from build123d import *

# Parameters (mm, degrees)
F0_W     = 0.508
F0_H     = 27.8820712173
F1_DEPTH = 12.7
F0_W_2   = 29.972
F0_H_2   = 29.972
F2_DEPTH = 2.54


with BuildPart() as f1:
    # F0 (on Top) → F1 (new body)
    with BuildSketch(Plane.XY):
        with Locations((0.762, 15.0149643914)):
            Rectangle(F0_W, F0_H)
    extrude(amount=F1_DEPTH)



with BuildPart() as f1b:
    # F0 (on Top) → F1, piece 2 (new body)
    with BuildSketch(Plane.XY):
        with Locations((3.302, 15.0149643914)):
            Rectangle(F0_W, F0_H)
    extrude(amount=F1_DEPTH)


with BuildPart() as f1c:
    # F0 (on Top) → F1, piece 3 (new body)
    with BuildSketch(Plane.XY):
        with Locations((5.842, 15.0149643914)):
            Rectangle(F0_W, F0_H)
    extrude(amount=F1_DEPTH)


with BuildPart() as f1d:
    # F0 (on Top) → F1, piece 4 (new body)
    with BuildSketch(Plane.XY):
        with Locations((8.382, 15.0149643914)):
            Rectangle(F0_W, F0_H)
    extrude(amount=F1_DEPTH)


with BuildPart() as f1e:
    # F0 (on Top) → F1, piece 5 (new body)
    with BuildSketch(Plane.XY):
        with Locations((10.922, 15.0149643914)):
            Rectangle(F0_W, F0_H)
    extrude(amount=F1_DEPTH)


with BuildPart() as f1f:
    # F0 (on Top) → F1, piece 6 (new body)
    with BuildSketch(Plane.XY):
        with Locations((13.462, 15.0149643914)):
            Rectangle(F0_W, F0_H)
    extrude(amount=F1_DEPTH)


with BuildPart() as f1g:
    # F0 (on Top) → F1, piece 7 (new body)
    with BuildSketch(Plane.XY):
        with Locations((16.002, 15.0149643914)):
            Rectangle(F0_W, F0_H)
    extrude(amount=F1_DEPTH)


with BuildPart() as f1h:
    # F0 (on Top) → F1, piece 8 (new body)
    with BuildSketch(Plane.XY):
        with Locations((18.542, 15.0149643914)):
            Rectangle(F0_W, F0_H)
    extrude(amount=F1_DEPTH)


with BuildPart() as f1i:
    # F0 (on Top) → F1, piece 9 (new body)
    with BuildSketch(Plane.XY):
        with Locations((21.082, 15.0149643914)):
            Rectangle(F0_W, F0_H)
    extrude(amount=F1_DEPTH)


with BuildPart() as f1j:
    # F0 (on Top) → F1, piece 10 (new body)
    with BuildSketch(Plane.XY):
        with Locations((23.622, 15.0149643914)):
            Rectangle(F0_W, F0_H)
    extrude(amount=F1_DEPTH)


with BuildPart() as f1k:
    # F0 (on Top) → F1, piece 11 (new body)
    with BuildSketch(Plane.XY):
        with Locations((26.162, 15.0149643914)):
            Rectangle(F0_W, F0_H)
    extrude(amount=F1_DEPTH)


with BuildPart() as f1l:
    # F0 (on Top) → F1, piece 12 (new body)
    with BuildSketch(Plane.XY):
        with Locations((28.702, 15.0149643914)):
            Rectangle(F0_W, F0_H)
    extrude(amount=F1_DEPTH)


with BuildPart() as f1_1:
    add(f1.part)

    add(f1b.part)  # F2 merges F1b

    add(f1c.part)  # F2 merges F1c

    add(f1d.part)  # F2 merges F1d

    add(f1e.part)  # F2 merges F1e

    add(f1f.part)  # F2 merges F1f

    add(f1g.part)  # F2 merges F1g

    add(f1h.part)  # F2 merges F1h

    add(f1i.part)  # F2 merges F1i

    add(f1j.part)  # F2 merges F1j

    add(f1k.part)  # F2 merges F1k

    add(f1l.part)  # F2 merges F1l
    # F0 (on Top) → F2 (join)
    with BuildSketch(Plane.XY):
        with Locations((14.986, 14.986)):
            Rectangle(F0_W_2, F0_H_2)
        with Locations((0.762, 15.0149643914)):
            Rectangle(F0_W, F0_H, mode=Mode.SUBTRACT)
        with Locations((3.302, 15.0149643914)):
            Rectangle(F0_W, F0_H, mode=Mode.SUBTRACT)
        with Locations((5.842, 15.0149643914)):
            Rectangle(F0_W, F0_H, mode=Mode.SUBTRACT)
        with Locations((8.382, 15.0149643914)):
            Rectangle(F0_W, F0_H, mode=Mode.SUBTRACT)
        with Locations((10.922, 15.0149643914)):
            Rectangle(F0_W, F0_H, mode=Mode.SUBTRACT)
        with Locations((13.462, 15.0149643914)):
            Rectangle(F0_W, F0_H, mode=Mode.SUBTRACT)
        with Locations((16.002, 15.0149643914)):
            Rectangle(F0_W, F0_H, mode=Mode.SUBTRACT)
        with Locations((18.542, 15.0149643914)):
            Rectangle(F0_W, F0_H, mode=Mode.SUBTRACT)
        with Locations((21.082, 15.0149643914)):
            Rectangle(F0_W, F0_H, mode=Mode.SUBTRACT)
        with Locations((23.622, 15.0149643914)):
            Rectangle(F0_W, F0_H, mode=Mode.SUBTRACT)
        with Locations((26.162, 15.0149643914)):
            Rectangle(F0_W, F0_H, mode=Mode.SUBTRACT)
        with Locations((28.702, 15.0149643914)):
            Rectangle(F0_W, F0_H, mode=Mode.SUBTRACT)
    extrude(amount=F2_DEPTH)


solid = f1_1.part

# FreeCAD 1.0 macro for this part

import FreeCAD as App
import Part
import Sketcher
from FreeCAD import Vector
Q = App.Units.Quantity


def add_polygon(sketch, points):
    """Adds a closed chain of lines whose ends are joined by coincident constraints."""
    first, n = sketch.GeometryCount, len(points)
    for a, b in zip(points, points[1:] + points[:1]):
        sketch.addGeometry(Part.LineSegment(App.Vector(*a, 0), App.Vector(*b, 0)), False)
    for i in range(n):
        sketch.addConstraint(Sketcher.Constraint("Coincident", first + i, 2, first + (i + 1) % n, 1))

doc = App.newDocument("Part")
body = doc.addObject("PartDesign::Body", "Body")

# Sketch on XY plane
sketch1 = body.newObject("Sketcher::SketchObject", "Sketch")
sketch1.AttachmentSupport = (doc.getObject("XY_Plane"), [""])
sketch1.MapMode = "FlatFace"
add_polygon(sketch1, [(0.5, 29), (0.5, 1.1), (1, 1.1), (1, 29)])  # lines 0-3
sketch1.addConstraint(Sketcher.Constraint("Vertical", 0))
sketch1.addConstraint(Sketcher.Constraint("Horizontal", 1))
sketch1.addConstraint(Sketcher.Constraint("Vertical", 2))
sketch1.addConstraint(Sketcher.Constraint("Horizontal", 3))
sketch1.addConstraint(Sketcher.Constraint("DistanceX", 1, 1, 1, 2, Q("0.02 in")))
sketch1.addConstraint(Sketcher.Constraint("DistanceX", -1, 1, 0, 2, Q("0.02 in")))
sketch1.addConstraint(Sketcher.Constraint("DistanceY", -1, 1, 2, 2, Q("1.14 in")))
sketch1.addConstraint(Sketcher.Constraint("DistanceY", 0, 2, 0, 1, Q("27.882071 mm")))
pad1 = body.newObject("PartDesign::Pad", "Pad")
pad1.Profile = sketch1
pad1.Length = Q("0.5 in")
body2 = doc.addObject("PartDesign::Body", "Body001")

# Sketch on XY plane
sketch2 = body2.newObject("Sketcher::SketchObject", "Sketch001")
sketch2.AttachmentSupport = (doc.getObject("XY_Plane001"), [""])
sketch2.MapMode = "FlatFace"
add_polygon(sketch2, [(3, 29), (3, 1.1), (3.6, 1.1), (3.6, 29)])  # lines 0-3
sketch2.addConstraint(Sketcher.Constraint("Vertical", 0))
sketch2.addConstraint(Sketcher.Constraint("Horizontal", 1))
sketch2.addConstraint(Sketcher.Constraint("Vertical", 2))
sketch2.addConstraint(Sketcher.Constraint("Horizontal", 3))
sketch2.addConstraint(Sketcher.Constraint("DistanceX", 1, 1, 1, 2, Q("0.02 in")))
sketch2.addConstraint(Sketcher.Constraint("DistanceX", -1, 1, 0, 2, Q("0.12 in")))
sketch2.addConstraint(Sketcher.Constraint("DistanceY", -1, 1, 2, 2, Q("1.14 in")))
sketch2.addConstraint(Sketcher.Constraint("DistanceY", 0, 2, 0, 1, Q("27.882071 mm")))
pad2 = body2.newObject("PartDesign::Pad", "Pad001")
pad2.Profile = sketch2
pad2.Length = Q("0.5 in")
body3 = doc.addObject("PartDesign::Body", "Body002")

# Sketch on XY plane
sketch3 = body3.newObject("Sketcher::SketchObject", "Sketch002")
sketch3.AttachmentSupport = (doc.getObject("XY_Plane002"), [""])
sketch3.MapMode = "FlatFace"
add_polygon(sketch3, [(5.6, 29), (5.6, 1.1), (6.1, 1.1), (6.1, 29)])  # lines 0-3
sketch3.addConstraint(Sketcher.Constraint("Vertical", 0))
sketch3.addConstraint(Sketcher.Constraint("Horizontal", 1))
sketch3.addConstraint(Sketcher.Constraint("Vertical", 2))
sketch3.addConstraint(Sketcher.Constraint("Horizontal", 3))
sketch3.addConstraint(Sketcher.Constraint("DistanceX", 1, 1, 1, 2, Q("0.02 in")))
sketch3.addConstraint(Sketcher.Constraint("DistanceX", -1, 1, 0, 2, Q("0.22 in")))
sketch3.addConstraint(Sketcher.Constraint("DistanceY", -1, 1, 2, 2, Q("1.14 in")))
sketch3.addConstraint(Sketcher.Constraint("DistanceY", 0, 2, 0, 1, Q("27.882071 mm")))
pad3 = body3.newObject("PartDesign::Pad", "Pad002")
pad3.Profile = sketch3
pad3.Length = Q("0.5 in")
body4 = doc.addObject("PartDesign::Body", "Body003")

# Sketch on XY plane
sketch4 = body4.newObject("Sketcher::SketchObject", "Sketch003")
sketch4.AttachmentSupport = (doc.getObject("XY_Plane003"), [""])
sketch4.MapMode = "FlatFace"
add_polygon(sketch4, [(8.1, 29), (8.1, 1.1), (8.6, 1.1), (8.6, 29)])  # lines 0-3
sketch4.addConstraint(Sketcher.Constraint("Vertical", 0))
sketch4.addConstraint(Sketcher.Constraint("Horizontal", 1))
sketch4.addConstraint(Sketcher.Constraint("Vertical", 2))
sketch4.addConstraint(Sketcher.Constraint("Horizontal", 3))
sketch4.addConstraint(Sketcher.Constraint("DistanceX", 1, 1, 1, 2, Q("0.02 in")))
sketch4.addConstraint(Sketcher.Constraint("DistanceX", -1, 1, 0, 2, Q("0.32 in")))
sketch4.addConstraint(Sketcher.Constraint("DistanceY", -1, 1, 2, 2, Q("1.14 in")))
sketch4.addConstraint(Sketcher.Constraint("DistanceY", 0, 2, 0, 1, Q("27.882071 mm")))
pad4 = body4.newObject("PartDesign::Pad", "Pad003")
pad4.Profile = sketch4
pad4.Length = Q("0.5 in")
body5 = doc.addObject("PartDesign::Body", "Body004")

# Sketch on XY plane
sketch5 = body5.newObject("Sketcher::SketchObject", "Sketch004")
sketch5.AttachmentSupport = (doc.getObject("XY_Plane004"), [""])
sketch5.MapMode = "FlatFace"
add_polygon(sketch5, [(10.7, 29), (10.7, 1.1), (11.2, 1.1), (11.2, 29)])  # lines 0-3
sketch5.addConstraint(Sketcher.Constraint("Vertical", 0))
sketch5.addConstraint(Sketcher.Constraint("Horizontal", 1))
sketch5.addConstraint(Sketcher.Constraint("Vertical", 2))
sketch5.addConstraint(Sketcher.Constraint("Horizontal", 3))
sketch5.addConstraint(Sketcher.Constraint("DistanceX", 1, 1, 1, 2, Q("0.02 in")))
sketch5.addConstraint(Sketcher.Constraint("DistanceX", -1, 1, 0, 2, Q("0.42 in")))
sketch5.addConstraint(Sketcher.Constraint("DistanceY", -1, 1, 2, 2, Q("1.14 in")))
sketch5.addConstraint(Sketcher.Constraint("DistanceY", 0, 2, 0, 1, Q("27.882071 mm")))
pad5 = body5.newObject("PartDesign::Pad", "Pad004")
pad5.Profile = sketch5
pad5.Length = Q("0.5 in")
body6 = doc.addObject("PartDesign::Body", "Body005")

# Sketch on XY plane
sketch6 = body6.newObject("Sketcher::SketchObject", "Sketch005")
sketch6.AttachmentSupport = (doc.getObject("XY_Plane005"), [""])
sketch6.MapMode = "FlatFace"
add_polygon(sketch6, [(13.2, 29), (13.2, 1.1), (13.7, 1.1), (13.7, 29)])  # lines 0-3
sketch6.addConstraint(Sketcher.Constraint("Vertical", 0))
sketch6.addConstraint(Sketcher.Constraint("Horizontal", 1))
sketch6.addConstraint(Sketcher.Constraint("Vertical", 2))
sketch6.addConstraint(Sketcher.Constraint("Horizontal", 3))
sketch6.addConstraint(Sketcher.Constraint("DistanceX", 1, 1, 1, 2, Q("0.02 in")))
sketch6.addConstraint(Sketcher.Constraint("DistanceX", -1, 1, 0, 2, Q("0.52 in")))
sketch6.addConstraint(Sketcher.Constraint("DistanceY", -1, 1, 2, 2, Q("1.14 in")))
sketch6.addConstraint(Sketcher.Constraint("DistanceY", 0, 2, 0, 1, Q("27.882071 mm")))
pad6 = body6.newObject("PartDesign::Pad", "Pad005")
pad6.Profile = sketch6
pad6.Length = Q("0.5 in")
body7 = doc.addObject("PartDesign::Body", "Body006")

# Sketch on XY plane
sketch7 = body7.newObject("Sketcher::SketchObject", "Sketch006")
sketch7.AttachmentSupport = (doc.getObject("XY_Plane006"), [""])
sketch7.MapMode = "FlatFace"
add_polygon(sketch7, [(15.7, 29), (15.7, 1.1), (16.3, 1.1), (16.3, 29)])  # lines 0-3
sketch7.addConstraint(Sketcher.Constraint("Vertical", 0))
sketch7.addConstraint(Sketcher.Constraint("Horizontal", 1))
sketch7.addConstraint(Sketcher.Constraint("Vertical", 2))
sketch7.addConstraint(Sketcher.Constraint("Horizontal", 3))
sketch7.addConstraint(Sketcher.Constraint("DistanceX", 1, 1, 1, 2, Q("0.02 in")))
sketch7.addConstraint(Sketcher.Constraint("DistanceX", -1, 1, 0, 2, Q("0.62 in")))
sketch7.addConstraint(Sketcher.Constraint("DistanceY", -1, 1, 2, 2, Q("1.14 in")))
sketch7.addConstraint(Sketcher.Constraint("DistanceY", 0, 2, 0, 1, Q("27.882071 mm")))
pad7 = body7.newObject("PartDesign::Pad", "Pad006")
pad7.Profile = sketch7
pad7.Length = Q("0.5 in")
body8 = doc.addObject("PartDesign::Body", "Body007")

# Sketch on XY plane
sketch8 = body8.newObject("Sketcher::SketchObject", "Sketch007")
sketch8.AttachmentSupport = (doc.getObject("XY_Plane007"), [""])
sketch8.MapMode = "FlatFace"
add_polygon(sketch8, [(18.3, 29), (18.3, 1.1), (18.8, 1.1), (18.8, 29)])  # lines 0-3
sketch8.addConstraint(Sketcher.Constraint("Vertical", 0))
sketch8.addConstraint(Sketcher.Constraint("Horizontal", 1))
sketch8.addConstraint(Sketcher.Constraint("Vertical", 2))
sketch8.addConstraint(Sketcher.Constraint("Horizontal", 3))
sketch8.addConstraint(Sketcher.Constraint("DistanceX", 1, 1, 1, 2, Q("0.02 in")))
sketch8.addConstraint(Sketcher.Constraint("DistanceX", -1, 1, 0, 2, Q("0.72 in")))
sketch8.addConstraint(Sketcher.Constraint("DistanceY", -1, 1, 2, 2, Q("1.14 in")))
sketch8.addConstraint(Sketcher.Constraint("DistanceY", 0, 2, 0, 1, Q("27.882071 mm")))
pad8 = body8.newObject("PartDesign::Pad", "Pad007")
pad8.Profile = sketch8
pad8.Length = Q("0.5 in")
body9 = doc.addObject("PartDesign::Body", "Body008")

# Sketch on XY plane
sketch9 = body9.newObject("Sketcher::SketchObject", "Sketch008")
sketch9.AttachmentSupport = (doc.getObject("XY_Plane008"), [""])
sketch9.MapMode = "FlatFace"
add_polygon(sketch9, [(20.8, 29), (20.8, 1.1), (21.3, 1.1), (21.3, 29)])  # lines 0-3
sketch9.addConstraint(Sketcher.Constraint("Vertical", 0))
sketch9.addConstraint(Sketcher.Constraint("Horizontal", 1))
sketch9.addConstraint(Sketcher.Constraint("Vertical", 2))
sketch9.addConstraint(Sketcher.Constraint("Horizontal", 3))
sketch9.addConstraint(Sketcher.Constraint("DistanceX", 1, 1, 1, 2, Q("0.02 in")))
sketch9.addConstraint(Sketcher.Constraint("DistanceX", -1, 1, 0, 2, Q("0.82 in")))
sketch9.addConstraint(Sketcher.Constraint("DistanceY", -1, 1, 2, 2, Q("1.14 in")))
sketch9.addConstraint(Sketcher.Constraint("DistanceY", 0, 2, 0, 1, Q("27.882071 mm")))
pad9 = body9.newObject("PartDesign::Pad", "Pad008")
pad9.Profile = sketch9
pad9.Length = Q("0.5 in")
body10 = doc.addObject("PartDesign::Body", "Body009")

# Sketch on XY plane
sketch10 = body10.newObject("Sketcher::SketchObject", "Sketch009")
sketch10.AttachmentSupport = (doc.getObject("XY_Plane009"), [""])
sketch10.MapMode = "FlatFace"
add_polygon(sketch10, [(23.4, 29), (23.4, 1.1), (23.9, 1.1), (23.9, 29)])  # lines 0-3
sketch10.addConstraint(Sketcher.Constraint("Vertical", 0))
sketch10.addConstraint(Sketcher.Constraint("Horizontal", 1))
sketch10.addConstraint(Sketcher.Constraint("Vertical", 2))
sketch10.addConstraint(Sketcher.Constraint("Horizontal", 3))
sketch10.addConstraint(Sketcher.Constraint("DistanceX", 1, 1, 1, 2, Q("0.02 in")))
sketch10.addConstraint(Sketcher.Constraint("DistanceX", -1, 1, 0, 2, Q("0.92 in")))
sketch10.addConstraint(Sketcher.Constraint("DistanceY", -1, 1, 2, 2, Q("1.14 in")))
sketch10.addConstraint(Sketcher.Constraint("DistanceY", 0, 2, 0, 1, Q("27.882071 mm")))
pad10 = body10.newObject("PartDesign::Pad", "Pad009")
pad10.Profile = sketch10
pad10.Length = Q("0.5 in")
body11 = doc.addObject("PartDesign::Body", "Body010")

# Sketch on XY plane
sketch11 = body11.newObject("Sketcher::SketchObject", "Sketch010")
sketch11.AttachmentSupport = (doc.getObject("XY_Plane010"), [""])
sketch11.MapMode = "FlatFace"
add_polygon(sketch11, [(25.9, 29), (25.9, 1.1), (26.4, 1.1), (26.4, 29)])  # lines 0-3
sketch11.addConstraint(Sketcher.Constraint("Vertical", 0))
sketch11.addConstraint(Sketcher.Constraint("Horizontal", 1))
sketch11.addConstraint(Sketcher.Constraint("Vertical", 2))
sketch11.addConstraint(Sketcher.Constraint("Horizontal", 3))
sketch11.addConstraint(Sketcher.Constraint("DistanceX", 1, 1, 1, 2, Q("0.02 in")))
sketch11.addConstraint(Sketcher.Constraint("DistanceX", -1, 1, 0, 2, Q("1.02 in")))
sketch11.addConstraint(Sketcher.Constraint("DistanceY", -1, 1, 2, 2, Q("1.14 in")))
sketch11.addConstraint(Sketcher.Constraint("DistanceY", 0, 2, 0, 1, Q("27.882071 mm")))
pad11 = body11.newObject("PartDesign::Pad", "Pad010")
pad11.Profile = sketch11
pad11.Length = Q("0.5 in")
body12 = doc.addObject("PartDesign::Body", "Body011")

# Sketch on XY plane
sketch12 = body12.newObject("Sketcher::SketchObject", "Sketch011")
sketch12.AttachmentSupport = (doc.getObject("XY_Plane011"), [""])
sketch12.MapMode = "FlatFace"
add_polygon(sketch12, [(28.4, 29), (28.4, 1.1), (29, 1.1), (29, 29)])  # lines 0-3
sketch12.addConstraint(Sketcher.Constraint("Vertical", 0))
sketch12.addConstraint(Sketcher.Constraint("Horizontal", 1))
sketch12.addConstraint(Sketcher.Constraint("Vertical", 2))
sketch12.addConstraint(Sketcher.Constraint("Horizontal", 3))
sketch12.addConstraint(Sketcher.Constraint("DistanceX", 1, 1, 1, 2, Q("0.02 in")))
sketch12.addConstraint(Sketcher.Constraint("DistanceX", -1, 1, 0, 2, Q("1.12 in")))
sketch12.addConstraint(Sketcher.Constraint("DistanceY", -1, 1, 2, 2, Q("1.14 in")))
sketch12.addConstraint(Sketcher.Constraint("DistanceY", 0, 2, 0, 1, Q("27.882071 mm")))
pad12 = body12.newObject("PartDesign::Pad", "Pad011")
pad12.Profile = sketch12
pad12.Length = Q("0.5 in")
body.AllowCompound = True
doc.recompute()

boolean = body.newObject("PartDesign::Boolean", "Boolean")
boolean.Type = "Fuse"
boolean.addObjects([body2])
doc.recompute()

boolean2 = body.newObject("PartDesign::Boolean", "Boolean001")
boolean2.Type = "Fuse"
boolean2.addObjects([body3])
doc.recompute()

boolean3 = body.newObject("PartDesign::Boolean", "Boolean002")
boolean3.Type = "Fuse"
boolean3.addObjects([body4])
doc.recompute()

boolean4 = body.newObject("PartDesign::Boolean", "Boolean003")
boolean4.Type = "Fuse"
boolean4.addObjects([body5])
doc.recompute()

boolean5 = body.newObject("PartDesign::Boolean", "Boolean004")
boolean5.Type = "Fuse"
boolean5.addObjects([body6])
doc.recompute()

boolean6 = body.newObject("PartDesign::Boolean", "Boolean005")
boolean6.Type = "Fuse"
boolean6.addObjects([body7])
doc.recompute()

boolean7 = body.newObject("PartDesign::Boolean", "Boolean006")
boolean7.Type = "Fuse"
boolean7.addObjects([body8])
doc.recompute()

boolean8 = body.newObject("PartDesign::Boolean", "Boolean007")
boolean8.Type = "Fuse"
boolean8.addObjects([body9])
doc.recompute()

boolean9 = body.newObject("PartDesign::Boolean", "Boolean008")
boolean9.Type = "Fuse"
boolean9.addObjects([body10])
doc.recompute()

boolean10 = body.newObject("PartDesign::Boolean", "Boolean009")
boolean10.Type = "Fuse"
boolean10.addObjects([body11])
doc.recompute()

boolean11 = body.newObject("PartDesign::Boolean", "Boolean010")
boolean11.Type = "Fuse"
boolean11.addObjects([body12])

# Sketch on XY plane
sketch13 = body.newObject("Sketcher::SketchObject", "Sketch012")
sketch13.AttachmentSupport = (doc.getObject("XY_Plane"), [""])
sketch13.MapMode = "FlatFace"
add_polygon(sketch13, [(0, 30), (0, 0), (30, 0), (30, 30)])  # lines 0-3
add_polygon(sketch13, [(1, 1.1), (0.5, 1.1), (0.5, 29), (1, 29)])  # lines 4-7
add_polygon(sketch13, [(3.6, 1.1), (3, 1.1), (3, 29), (3.6, 29)])  # lines 8-11
add_polygon(sketch13, [(6.1, 1.1), (5.6, 1.1), (5.6, 29), (6.1, 29)])  # lines 12-15
add_polygon(sketch13, [(8.6, 1.1), (8.1, 1.1), (8.1, 29), (8.6, 29)])  # lines 16-19
add_polygon(sketch13, [(11.2, 1.1), (10.7, 1.1), (10.7, 29), (11.2, 29)])  # lines 20-23
add_polygon(sketch13, [(13.7, 1.1), (13.2, 1.1), (13.2, 29), (13.7, 29)])  # lines 24-27
add_polygon(sketch13, [(16.3, 1.1), (15.7, 1.1), (15.7, 29), (16.3, 29)])  # lines 28-31
add_polygon(sketch13, [(18.8, 1.1), (18.3, 1.1), (18.3, 29), (18.8, 29)])  # lines 32-35
add_polygon(sketch13, [(21.3, 1.1), (20.8, 1.1), (20.8, 29), (21.3, 29)])  # lines 36-39
add_polygon(sketch13, [(23.9, 1.1), (23.4, 1.1), (23.4, 29), (23.9, 29)])  # lines 40-43
add_polygon(sketch13, [(26.4, 1.1), (25.9, 1.1), (25.9, 29), (26.4, 29)])  # lines 44-47
add_polygon(sketch13, [(29, 1.1), (28.4, 1.1), (28.4, 29), (29, 29)])  # lines 48-51
sketch13.addConstraint(Sketcher.Constraint("Vertical", 0))
sketch13.addConstraint(Sketcher.Constraint("Horizontal", 1))
sketch13.addConstraint(Sketcher.Constraint("Vertical", 2))
sketch13.addConstraint(Sketcher.Constraint("Horizontal", 3))
sketch13.addConstraint(Sketcher.Constraint("Horizontal", 4))
sketch13.addConstraint(Sketcher.Constraint("Vertical", 5))
sketch13.addConstraint(Sketcher.Constraint("Horizontal", 6))
sketch13.addConstraint(Sketcher.Constraint("Vertical", 7))
sketch13.addConstraint(Sketcher.Constraint("Horizontal", 8))
sketch13.addConstraint(Sketcher.Constraint("Vertical", 9))
sketch13.addConstraint(Sketcher.Constraint("Horizontal", 10))
sketch13.addConstraint(Sketcher.Constraint("Vertical", 11))
sketch13.addConstraint(Sketcher.Constraint("Horizontal", 12))
sketch13.addConstraint(Sketcher.Constraint("Vertical", 13))
sketch13.addConstraint(Sketcher.Constraint("Horizontal", 14))
sketch13.addConstraint(Sketcher.Constraint("Vertical", 15))
sketch13.addConstraint(Sketcher.Constraint("Horizontal", 16))
sketch13.addConstraint(Sketcher.Constraint("Vertical", 17))
sketch13.addConstraint(Sketcher.Constraint("Horizontal", 18))
sketch13.addConstraint(Sketcher.Constraint("Vertical", 19))
sketch13.addConstraint(Sketcher.Constraint("Horizontal", 20))
sketch13.addConstraint(Sketcher.Constraint("Vertical", 21))
sketch13.addConstraint(Sketcher.Constraint("Horizontal", 22))
sketch13.addConstraint(Sketcher.Constraint("Vertical", 23))
sketch13.addConstraint(Sketcher.Constraint("Horizontal", 24))
sketch13.addConstraint(Sketcher.Constraint("Vertical", 25))
sketch13.addConstraint(Sketcher.Constraint("Horizontal", 26))
sketch13.addConstraint(Sketcher.Constraint("Vertical", 27))
sketch13.addConstraint(Sketcher.Constraint("Horizontal", 28))
sketch13.addConstraint(Sketcher.Constraint("Vertical", 29))
sketch13.addConstraint(Sketcher.Constraint("Horizontal", 30))
sketch13.addConstraint(Sketcher.Constraint("Vertical", 31))
sketch13.addConstraint(Sketcher.Constraint("Horizontal", 32))
sketch13.addConstraint(Sketcher.Constraint("Vertical", 33))
sketch13.addConstraint(Sketcher.Constraint("Horizontal", 34))
sketch13.addConstraint(Sketcher.Constraint("Vertical", 35))
sketch13.addConstraint(Sketcher.Constraint("Horizontal", 36))
sketch13.addConstraint(Sketcher.Constraint("Vertical", 37))
sketch13.addConstraint(Sketcher.Constraint("Horizontal", 38))
sketch13.addConstraint(Sketcher.Constraint("Vertical", 39))
sketch13.addConstraint(Sketcher.Constraint("Horizontal", 40))
sketch13.addConstraint(Sketcher.Constraint("Vertical", 41))
sketch13.addConstraint(Sketcher.Constraint("Horizontal", 42))
sketch13.addConstraint(Sketcher.Constraint("Vertical", 43))
sketch13.addConstraint(Sketcher.Constraint("Horizontal", 44))
sketch13.addConstraint(Sketcher.Constraint("Vertical", 45))
sketch13.addConstraint(Sketcher.Constraint("Horizontal", 46))
sketch13.addConstraint(Sketcher.Constraint("Vertical", 47))
sketch13.addConstraint(Sketcher.Constraint("Horizontal", 48))
sketch13.addConstraint(Sketcher.Constraint("Vertical", 49))
sketch13.addConstraint(Sketcher.Constraint("Horizontal", 50))
sketch13.addConstraint(Sketcher.Constraint("Vertical", 51))
sketch13.addConstraint(Sketcher.Constraint("Coincident", 0, 2, -1, 1))
sketch13.addConstraint(Sketcher.Constraint("Horizontal", 7, 2, 8, 2))
sketch13.addConstraint(Sketcher.Constraint("Horizontal", 6, 2, 9, 2))
sketch13.addConstraint(Sketcher.Constraint("Horizontal", 11, 2, 12, 2))
sketch13.addConstraint(Sketcher.Constraint("Horizontal", 10, 2, 13, 2))
sketch13.addConstraint(Sketcher.Constraint("Horizontal", 15, 2, 16, 2))
sketch13.addConstraint(Sketcher.Constraint("Horizontal", 14, 2, 17, 2))
sketch13.addConstraint(Sketcher.Constraint("Horizontal", 19, 2, 20, 2))
sketch13.addConstraint(Sketcher.Constraint("Horizontal", 18, 2, 21, 2))
sketch13.addConstraint(Sketcher.Constraint("Horizontal", 23, 2, 24, 2))
sketch13.addConstraint(Sketcher.Constraint("Horizontal", 22, 2, 25, 2))
sketch13.addConstraint(Sketcher.Constraint("Horizontal", 27, 2, 28, 2))
sketch13.addConstraint(Sketcher.Constraint("Horizontal", 26, 2, 29, 2))
sketch13.addConstraint(Sketcher.Constraint("Horizontal", 31, 2, 32, 2))
sketch13.addConstraint(Sketcher.Constraint("Horizontal", 30, 2, 33, 2))
sketch13.addConstraint(Sketcher.Constraint("Horizontal", 35, 2, 36, 2))
sketch13.addConstraint(Sketcher.Constraint("Horizontal", 34, 2, 37, 2))
sketch13.addConstraint(Sketcher.Constraint("Horizontal", 39, 2, 40, 2))
sketch13.addConstraint(Sketcher.Constraint("Horizontal", 38, 2, 41, 2))
sketch13.addConstraint(Sketcher.Constraint("Horizontal", 43, 2, 44, 2))
sketch13.addConstraint(Sketcher.Constraint("Horizontal", 42, 2, 45, 2))
sketch13.addConstraint(Sketcher.Constraint("Horizontal", 47, 2, 48, 2))
sketch13.addConstraint(Sketcher.Constraint("Horizontal", 46, 2, 49, 2))
sketch13.addConstraint(Sketcher.Constraint("Equal", 6, 8))
sketch13.addConstraint(Sketcher.Constraint("Equal", 10, 12))
sketch13.addConstraint(Sketcher.Constraint("Equal", 14, 16))
sketch13.addConstraint(Sketcher.Constraint("Equal", 18, 20))
sketch13.addConstraint(Sketcher.Constraint("Equal", 22, 24))
sketch13.addConstraint(Sketcher.Constraint("Equal", 26, 28))
sketch13.addConstraint(Sketcher.Constraint("Equal", 30, 32))
sketch13.addConstraint(Sketcher.Constraint("Equal", 34, 36))
sketch13.addConstraint(Sketcher.Constraint("Equal", 38, 40))
sketch13.addConstraint(Sketcher.Constraint("Equal", 42, 44))
sketch13.addConstraint(Sketcher.Constraint("Equal", 46, 48))
sketch13.addConstraint(Sketcher.Constraint("Equal", 3, 0))
sketch13.addConstraint(Sketcher.Constraint("DistanceX", 1, 1, 1, 2, Q("1.18 in")))
sketch13.addConstraint(Sketcher.Constraint("DistanceX", 4, 2, 4, 1, Q("0.02 in")))
sketch13.addConstraint(Sketcher.Constraint("DistanceX", 4, 2, 8, 2, Q("0.1 in")))
sketch13.addConstraint(Sketcher.Constraint("DistanceX", 8, 2, 12, 2, Q("0.1 in")))
sketch13.addConstraint(Sketcher.Constraint("DistanceX", 12, 2, 16, 2, Q("0.1 in")))
sketch13.addConstraint(Sketcher.Constraint("DistanceX", 16, 2, 20, 2, Q("0.1 in")))
sketch13.addConstraint(Sketcher.Constraint("DistanceX", 20, 2, 24, 2, Q("0.1 in")))
sketch13.addConstraint(Sketcher.Constraint("DistanceX", 24, 2, 28, 2, Q("0.1 in")))
sketch13.addConstraint(Sketcher.Constraint("DistanceX", 28, 2, 32, 2, Q("0.1 in")))
sketch13.addConstraint(Sketcher.Constraint("DistanceX", 32, 2, 36, 2, Q("0.1 in")))
sketch13.addConstraint(Sketcher.Constraint("DistanceX", 36, 2, 40, 2, Q("0.1 in")))
sketch13.addConstraint(Sketcher.Constraint("DistanceX", 40, 2, 44, 2, Q("0.1 in")))
sketch13.addConstraint(Sketcher.Constraint("DistanceX", 44, 2, 48, 2, Q("0.1 in")))
sketch13.addConstraint(Sketcher.Constraint("DistanceX", -1, 1, 4, 2, Q("0.02 in")))
sketch13.addConstraint(Sketcher.Constraint("DistanceY", -1, 1, 5, 2, Q("1.14 in")))
sketch13.addConstraint(Sketcher.Constraint("DistanceY", 5, 1, 5, 2, Q("27.882071 mm")))
pad13 = body.newObject("PartDesign::Pad", "Pad012")
pad13.Profile = sketch13
pad13.Length = Q("0.1 in")

doc.recompute()
